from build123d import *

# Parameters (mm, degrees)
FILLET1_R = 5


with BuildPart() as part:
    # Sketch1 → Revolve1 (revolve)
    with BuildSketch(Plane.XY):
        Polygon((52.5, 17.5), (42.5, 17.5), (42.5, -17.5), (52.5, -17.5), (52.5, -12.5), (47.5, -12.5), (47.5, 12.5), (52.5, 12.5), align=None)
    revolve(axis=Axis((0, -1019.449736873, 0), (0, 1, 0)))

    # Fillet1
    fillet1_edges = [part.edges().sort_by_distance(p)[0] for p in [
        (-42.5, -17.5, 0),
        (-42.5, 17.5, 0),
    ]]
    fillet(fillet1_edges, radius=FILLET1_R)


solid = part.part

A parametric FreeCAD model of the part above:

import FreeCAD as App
import Part
import Sketcher

V = App.Vector
Q = App.Units.Quantity


def edges_at(feature, points):
    """Names of the edges that pass closest to the given points."""
    edges = feature.Shape.Edges
    near = lambda p: min(range(len(edges)), key=lambda i: edges[i].distToShape(Part.Vertex(*p))[0])
    return sorted({f"Edge{near(p) + 1}" for p in points})


def add_polygon(sketch, points):
    """Adds a closed chain of lines whose ends are joined by coincident constraints."""
    first, n = sketch.GeometryCount, len(points)
    for a, b in zip(points, points[1:] + points[:1]):
        sketch.addGeometry(Part.LineSegment(App.Vector(*a, 0), App.Vector(*b, 0)), False)
    for i in range(n):
        sketch.addConstraint(Sketcher.Constraint("Coincident", first + i, 2, first + (i + 1) % n, 1))

doc = App.newDocument("Part")
body = doc.addObject("PartDesign::Body", "Body")

# Sketch on XY plane
sketch1 = doc.addObject("Sketcher::SketchObject", "Sketch")
body.addObject(sketch1)
sketch1.AttachmentSupport = (doc.XY_Plane, [""])
sketch1.MapMode = "FlatFace"
add_polygon(sketch1, [(52, 18), (42, 18), (42, -18), (52, -18), (52, -12), (48, -12), (48, 12), (52, 12)])  # lines 0-7
sketch1.addConstraint(Sketcher.Constraint("Horizontal", 0))
sketch1.addConstraint(Sketcher.Constraint("Vertical", 1))
sketch1.addConstraint(Sketcher.Constraint("Horizontal", 2))
sketch1.addConstraint(Sketcher.Constraint("Vertical", 3))
sketch1.addConstraint(Sketcher.Constraint("Horizontal", 4))
sketch1.addConstraint(Sketcher.Constraint("Vertical", 5))
sketch1.addConstraint(Sketcher.Constraint("Horizontal", 6))
sketch1.addConstraint(Sketcher.Constraint("Vertical", 7))
sketch1.addConstraint(Sketcher.Constraint("Symmetric", 3, 2, 6, 2, -1))
sketch1.addConstraint(Sketcher.Constraint("Equal", 6, 3))
sketch1.addConstraint(Sketcher.Constraint("Equal", 3, 7))
sketch1.addConstraint(Sketcher.Constraint("DistanceX", 0, 2, 0, 1, Q("10 mm")))
sketch1.addConstraint(Sketcher.Constraint("DistanceX", 4, 2, 4, 1, Q("5 mm")))
sketch1.addConstraint(Sketcher.Constraint("DistanceY", 1, 2, 1, 1, Q("35 mm")))
sketch1.addConstraint(Sketcher.Constraint("DistanceX", -1, 1, 0, 2, Q("42.5 mm")))
revolution = doc.addObject("PartDesign::Revolution", "Revolution")
body.addObject(revolution)
revolution.Profile = sketch1
revolution.ReferenceAxis = (sketch1, ["V_Axis"])
revolution.Angle = 360
doc.recompute()

fillet = doc.addObject("PartDesign::Fillet", "Fillet")
body.addObject(fillet)
fillet.Base = (revolution, edges_at(revolution, [(-42.5, -17.5, 0), (-42.5, 17.5, 0)]))
fillet.Radius = 5

doc.recompute()
